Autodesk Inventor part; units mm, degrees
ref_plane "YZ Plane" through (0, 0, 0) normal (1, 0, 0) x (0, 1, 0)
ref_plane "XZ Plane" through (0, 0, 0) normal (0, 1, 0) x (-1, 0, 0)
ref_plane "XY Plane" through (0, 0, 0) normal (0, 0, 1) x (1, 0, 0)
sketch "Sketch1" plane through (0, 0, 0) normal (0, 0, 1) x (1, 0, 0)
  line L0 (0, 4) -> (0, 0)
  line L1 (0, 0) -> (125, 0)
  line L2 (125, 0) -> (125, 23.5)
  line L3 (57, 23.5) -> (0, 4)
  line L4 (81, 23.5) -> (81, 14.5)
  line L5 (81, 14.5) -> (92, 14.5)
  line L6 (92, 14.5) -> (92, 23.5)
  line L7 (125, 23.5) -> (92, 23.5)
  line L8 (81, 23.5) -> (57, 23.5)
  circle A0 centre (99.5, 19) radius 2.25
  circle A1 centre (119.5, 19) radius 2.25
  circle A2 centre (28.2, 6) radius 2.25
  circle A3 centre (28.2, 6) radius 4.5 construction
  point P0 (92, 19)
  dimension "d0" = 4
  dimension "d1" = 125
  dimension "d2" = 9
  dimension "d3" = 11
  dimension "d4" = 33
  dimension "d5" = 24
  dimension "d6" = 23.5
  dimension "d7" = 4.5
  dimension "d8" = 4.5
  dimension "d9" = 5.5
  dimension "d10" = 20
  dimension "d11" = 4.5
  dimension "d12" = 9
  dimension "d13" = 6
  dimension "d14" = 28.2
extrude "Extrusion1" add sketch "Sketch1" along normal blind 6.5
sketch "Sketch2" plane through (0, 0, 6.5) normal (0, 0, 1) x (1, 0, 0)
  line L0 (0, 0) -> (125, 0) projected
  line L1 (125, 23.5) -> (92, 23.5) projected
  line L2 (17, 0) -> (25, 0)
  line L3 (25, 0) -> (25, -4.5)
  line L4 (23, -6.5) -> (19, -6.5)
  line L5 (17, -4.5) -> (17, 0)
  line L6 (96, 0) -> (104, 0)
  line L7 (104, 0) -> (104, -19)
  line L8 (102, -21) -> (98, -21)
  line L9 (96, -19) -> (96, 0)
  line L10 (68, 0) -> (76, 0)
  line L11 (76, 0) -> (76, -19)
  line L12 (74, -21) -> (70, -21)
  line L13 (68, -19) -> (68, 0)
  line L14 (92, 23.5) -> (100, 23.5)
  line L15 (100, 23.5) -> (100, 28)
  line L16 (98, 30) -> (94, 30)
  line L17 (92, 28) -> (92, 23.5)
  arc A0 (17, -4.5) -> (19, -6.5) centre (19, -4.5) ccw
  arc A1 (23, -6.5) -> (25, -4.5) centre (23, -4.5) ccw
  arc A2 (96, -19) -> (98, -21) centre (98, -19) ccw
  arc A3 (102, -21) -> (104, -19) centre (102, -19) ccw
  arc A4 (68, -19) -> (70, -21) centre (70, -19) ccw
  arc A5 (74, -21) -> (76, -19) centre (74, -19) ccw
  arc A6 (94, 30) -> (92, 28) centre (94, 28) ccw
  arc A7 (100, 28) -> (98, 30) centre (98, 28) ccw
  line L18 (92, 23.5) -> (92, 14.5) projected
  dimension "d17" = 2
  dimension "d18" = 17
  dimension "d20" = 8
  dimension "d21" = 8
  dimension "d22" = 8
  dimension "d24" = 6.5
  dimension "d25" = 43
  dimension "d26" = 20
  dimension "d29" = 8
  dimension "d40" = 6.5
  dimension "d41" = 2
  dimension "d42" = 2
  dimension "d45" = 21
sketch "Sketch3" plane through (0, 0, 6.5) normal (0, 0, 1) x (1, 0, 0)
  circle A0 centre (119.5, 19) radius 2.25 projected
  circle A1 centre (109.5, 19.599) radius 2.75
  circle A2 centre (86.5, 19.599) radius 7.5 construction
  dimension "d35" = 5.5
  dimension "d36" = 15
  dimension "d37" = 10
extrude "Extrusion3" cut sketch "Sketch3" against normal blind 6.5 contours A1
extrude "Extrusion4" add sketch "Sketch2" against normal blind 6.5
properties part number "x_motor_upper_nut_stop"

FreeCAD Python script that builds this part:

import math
import FreeCAD as App
import Part
import Sketcher
from FreeCAD import Vector

doc = App.newDocument("Part")
body = doc.addObject("PartDesign::Body", "Body")

sketch1 = body.newObject("Sketcher::SketchObject", "Sketch")
sketch1.AttachmentSupport = (doc.getObject("XY_Plane"), [""])
sketch1.MapMode = "FlatFace"
sketch1.addGeometry(Part.LineSegment(Vector(57, 23.5, 0), Vector(0, 4, 0)), False)
sketch1.addGeometry(Part.LineSegment(Vector(0, 4, 0), Vector(0, 0, 0)), False)
sketch1.addGeometry(Part.LineSegment(Vector(0, 0, 0), Vector(125, 0, 0)), False)
sketch1.addGeometry(Part.LineSegment(Vector(125, 0, 0), Vector(125, 23.5, 0)), False)
sketch1.addGeometry(Part.LineSegment(Vector(125, 23.5, 0), Vector(92, 23.5, 0)), False)
sketch1.addGeometry(Part.LineSegment(Vector(92, 23.5, 0), Vector(92, 14.5, 0)), False)
sketch1.addGeometry(Part.LineSegment(Vector(92, 14.5, 0), Vector(81, 14.5, 0)), False)
sketch1.addGeometry(Part.LineSegment(Vector(81, 14.5, 0), Vector(81, 23.5, 0)), False)
sketch1.addGeometry(Part.LineSegment(Vector(81, 23.5, 0), Vector(57, 23.5, 0)), False)
sketch1.addGeometry(Part.Circle(Vector(28.2, 6, 0), Vector(0, 0, 1), 2.25), False)
sketch1.addGeometry(Part.Circle(Vector(99.5, 19, 0), Vector(0, 0, 1), 2.25), False)
sketch1.addGeometry(Part.Circle(Vector(119.5, 19, 0), Vector(0, 0, 1), 2.25), False)
sketch1.addConstraint(Sketcher.Constraint("Coincident", 0, 2, 1, 1))
sketch1.addConstraint(Sketcher.Constraint("Coincident", 1, 2, 2, 1))
sketch1.addConstraint(Sketcher.Constraint("Coincident", 2, 2, 3, 1))
sketch1.addConstraint(Sketcher.Constraint("Coincident", 3, 2, 4, 1))
sketch1.addConstraint(Sketcher.Constraint("Coincident", 4, 2, 5, 1))
sketch1.addConstraint(Sketcher.Constraint("Coincident", 5, 2, 6, 1))
sketch1.addConstraint(Sketcher.Constraint("Coincident", 6, 2, 7, 1))
sketch1.addConstraint(Sketcher.Constraint("Coincident", 7, 2, 8, 1))
sketch1.addConstraint(Sketcher.Constraint("Coincident", 8, 2, 0, 1))
sketch1.addConstraint(Sketcher.Constraint("Vertical", 1))
sketch1.addConstraint(Sketcher.Constraint("Horizontal", 2))
sketch1.addConstraint(Sketcher.Constraint("Vertical", 3))
sketch1.addConstraint(Sketcher.Constraint("Horizontal", 4))
sketch1.addConstraint(Sketcher.Constraint("Vertical", 5))
sketch1.addConstraint(Sketcher.Constraint("Horizontal", 6))
sketch1.addConstraint(Sketcher.Constraint("Vertical", 7))
sketch1.addConstraint(Sketcher.Constraint("Horizontal", 8))
sketch1.addConstraint(Sketcher.Constraint("Coincident", 1, 2, -1, 1))
sketch1.addConstraint(Sketcher.Constraint("Equal", 9, 10))
sketch1.addConstraint(Sketcher.Constraint("Equal", 10, 11))
sketch1.addConstraint(Sketcher.Constraint("Horizontal", 10, 3, 11, 3))
sketch1.addConstraint(Sketcher.Constraint("Horizontal", 4, 2, 7, 2))
sketch1.addConstraint(Sketcher.Constraint("Diameter", 9, 4.5))
sketch1.addConstraint(Sketcher.Constraint("DistanceX", 2, 1, 2, 2, 125.0))
sketch1.addConstraint(Sketcher.Constraint("DistanceX", 4, 2, 4, 1, 33.0))
sketch1.addConstraint(Sketcher.Constraint("DistanceX", 6, 2, 6, 1, 11.0))
sketch1.addConstraint(Sketcher.Constraint("DistanceX", 8, 2, 8, 1, 24.0))
sketch1.addConstraint(Sketcher.Constraint("DistanceY", 1, 2, 1, 1, 4.0))
sketch1.addConstraint(Sketcher.Constraint("DistanceY", 5, 2, 5, 1, 9.0))
sketch1.addConstraint(Sketcher.Constraint("DistanceY", 3, 1, 3, 2, 23.5))
sketch1.addConstraint(Sketcher.Constraint("DistanceY", -1, 1, 9, 3, 6.0))
sketch1.addConstraint(Sketcher.Constraint("DistanceX", 10, 3, 11, 3, 20.0))
sketch1.addConstraint(Sketcher.Constraint("DistanceX", -1, 1, 9, 3, 28.2))
sketch1.addConstraint(Sketcher.Constraint("DistanceX", 11, 3, 2, 2, 5.5))
sketch1.addConstraint(Sketcher.Constraint("DistanceY", 11, 3, 3, 2, 4.5))
pad1 = body.newObject("PartDesign::Pad", "Pad")
pad1.Profile = sketch1
pad1.Length = 6.5

sketch2 = body.newObject("Sketcher::SketchObject", "Sketch001")
sketch2.AttachmentSupport = (doc.getObject("XY_Plane"), [""])
sketch2.MapMode = "FlatFace"
sketch2.AttachmentOffset = App.Placement(Vector(0, 0, 6.5), App.Rotation())
sketch2.addGeometry(Part.Circle(Vector(109.5, 19.599, 0), Vector(0, 0, 1), 2.75), False)
sketch2.addConstraint(Sketcher.Constraint("Diameter", 0, 5.5))
sketch2.addConstraint(Sketcher.Constraint("DistanceX", -1, 1, 0, 3, 109.5))
sketch2.addConstraint(Sketcher.Constraint("DistanceY", -1, 1, 0, 3, 19.599))
pocket1 = body.newObject("PartDesign::Pocket", "Pocket")
pocket1.Profile = sketch2
pocket1.Length = 6.5

sketch3 = body.newObject("Sketcher::SketchObject", "Sketch002")
sketch3.AttachmentSupport = (doc.getObject("XY_Plane"), [""])
sketch3.MapMode = "FlatFace"
sketch3.AttachmentOffset = App.Placement(Vector(0, 0, 6.5), App.Rotation())
sketch3.addGeometry(Part.LineSegment(Vector(104, 0, 0), Vector(96, 0, 0)), False)
sketch3.addGeometry(Part.LineSegment(Vector(96, 0, 0), Vector(96, -19, 0)), False)
sketch3.addGeometry(Part.ArcOfCircle(Part.Circle(Vector(98, -19, 0), Vector(0, 0, 1), 2), math.radians(180), math.radians(270)), False)
sketch3.addGeometry(Part.LineSegment(Vector(98, -21, 0), Vector(102, -21, 0)), False)
sketch3.addGeometry(Part.ArcOfCircle(Part.Circle(Vector(102, -19, 0), Vector(0, 0, 1), 2), math.radians(-90), math.radians(0)), False)
sketch3.addGeometry(Part.LineSegment(Vector(104, -19, 0), Vector(104, 0, 0)), False)
sketch3.addGeometry(Part.LineSegment(Vector(76, 0, 0), Vector(68, 0, 0)), False)
sketch3.addGeometry(Part.LineSegment(Vector(68, 0, 0), Vector(68, -19, 0)), False)
sketch3.addGeometry(Part.ArcOfCircle(Part.Circle(Vector(70, -19, 0), Vector(0, 0, 1), 2), math.radians(180), math.radians(270)), False)
sketch3.addGeometry(Part.LineSegment(Vector(70, -21, 0), Vector(74, -21, 0)), False)
sketch3.addGeometry(Part.ArcOfCircle(Part.Circle(Vector(74, -19, 0), Vector(0, 0, 1), 2), math.radians(-90), math.radians(0)), False)
sketch3.addGeometry(Part.LineSegment(Vector(76, -19, 0), Vector(76, 0, 0)), False)
sketch3.addGeometry(Part.LineSegment(Vector(25, 0, 0), Vector(17, 0, 0)), False)
sketch3.addGeometry(Part.LineSegment(Vector(17, 0, 0), Vector(17, -4.5, 0)), False)
sketch3.addGeometry(Part.ArcOfCircle(Part.Circle(Vector(19, -4.5, 0), Vector(0, 0, 1), 2), math.radians(180), math.radians(270)), False)
sketch3.addGeometry(Part.LineSegment(Vector(19, -6.5, 0), Vector(23, -6.5, 0)), False)
sketch3.addGeometry(Part.ArcOfCircle(Part.Circle(Vector(23, -4.5, 0), Vector(0, 0, 1), 2), math.radians(-90), math.radians(0)), False)
sketch3.addGeometry(Part.LineSegment(Vector(25, -4.5, 0), Vector(25, 0, 0)), False)
sketch3.addGeometry(Part.LineSegment(Vector(92, 23.5, 0), Vector(100, 23.5, 0)), False)
sketch3.addGeometry(Part.LineSegment(Vector(100, 23.5, 0), Vector(100, 28, 0)), False)
sketch3.addGeometry(Part.ArcOfCircle(Part.Circle(Vector(98, 28, 0), Vector(0, 0, 1), 2), math.radians(0), math.radians(90)), False)
sketch3.addGeometry(Part.LineSegment(Vector(98, 30, 0), Vector(94, 30, 0)), False)
sketch3.addGeometry(Part.ArcOfCircle(Part.Circle(Vector(94, 28, 0), Vector(0, 0, 1), 2), math.radians(90), math.radians(180)), False)
sketch3.addGeometry(Part.LineSegment(Vector(92, 28, 0), Vector(92, 23.5, 0)), False)
sketch3.addConstraint(Sketcher.Constraint("Coincident", 0, 2, 1, 1))
sketch3.addConstraint(Sketcher.Constraint("Tangent", 1, 2, 2, 1))
sketch3.addConstraint(Sketcher.Constraint("Tangent", 2, 2, 3, 1))
sketch3.addConstraint(Sketcher.Constraint("Tangent", 3, 2, 4, 1))
sketch3.addConstraint(Sketcher.Constraint("Tangent", 4, 2, 5, 1))
sketch3.addConstraint(Sketcher.Constraint("Coincident", 5, 2, 0, 1))
sketch3.addConstraint(Sketcher.Constraint("Coincident", 6, 2, 7, 1))
sketch3.addConstraint(Sketcher.Constraint("Tangent", 7, 2, 8, 1))
sketch3.addConstraint(Sketcher.Constraint("Tangent", 8, 2, 9, 1))
sketch3.addConstraint(Sketcher.Constraint("Tangent", 9, 2, 10, 1))
sketch3.addConstraint(Sketcher.Constraint("Tangent", 10, 2, 11, 1))
sketch3.addConstraint(Sketcher.Constraint("Coincident", 11, 2, 6, 1))
sketch3.addConstraint(Sketcher.Constraint("Coincident", 12, 2, 13, 1))
sketch3.addConstraint(Sketcher.Constraint("Tangent", 13, 2, 14, 1))
sketch3.addConstraint(Sketcher.Constraint("Tangent", 14, 2, 15, 1))
sketch3.addConstraint(Sketcher.Constraint("Tangent", 15, 2, 16, 1))
sketch3.addConstraint(Sketcher.Constraint("Tangent", 16, 2, 17, 1))
sketch3.addConstraint(Sketcher.Constraint("Coincident", 17, 2, 12, 1))
sketch3.addConstraint(Sketcher.Constraint("Coincident", 18, 2, 19, 1))
sketch3.addConstraint(Sketcher.Constraint("Tangent", 19, 2, 20, 1))
sketch3.addConstraint(Sketcher.Constraint("Tangent", 20, 2, 21, 1))
sketch3.addConstraint(Sketcher.Constraint("Tangent", 21, 2, 22, 1))
sketch3.addConstraint(Sketcher.Constraint("Tangent", 22, 2, 23, 1))
sketch3.addConstraint(Sketcher.Constraint("Coincident", 23, 2, 18, 1))
sketch3.addConstraint(Sketcher.Constraint("Horizontal", 0))
sketch3.addConstraint(Sketcher.Constraint("Vertical", 1))
sketch3.addConstraint(Sketcher.Constraint("Horizontal", 3))
sketch3.addConstraint(Sketcher.Constraint("Vertical", 5))
sketch3.addConstraint(Sketcher.Constraint("Horizontal", 6))
sketch3.addConstraint(Sketcher.Constraint("Vertical", 7))
sketch3.addConstraint(Sketcher.Constraint("Horizontal", 9))
sketch3.addConstraint(Sketcher.Constraint("Vertical", 11))
sketch3.addConstraint(Sketcher.Constraint("Horizontal", 12))
sketch3.addConstraint(Sketcher.Constraint("Vertical", 13))
sketch3.addConstraint(Sketcher.Constraint("Horizontal", 15))
sketch3.addConstraint(Sketcher.Constraint("Vertical", 17))
sketch3.addConstraint(Sketcher.Constraint("Horizontal", 18))
sketch3.addConstraint(Sketcher.Constraint("Vertical", 19))
sketch3.addConstraint(Sketcher.Constraint("Horizontal", 21))
sketch3.addConstraint(Sketcher.Constraint("Vertical", 23))
sketch3.addConstraint(Sketcher.Constraint("Equal", 2, 4))
sketch3.addConstraint(Sketcher.Constraint("Equal", 4, 8))
sketch3.addConstraint(Sketcher.Constraint("Equal", 8, 10))
sketch3.addConstraint(Sketcher.Constraint("Equal", 10, 14))
sketch3.addConstraint(Sketcher.Constraint("Equal", 14, 16))
sketch3.addConstraint(Sketcher.Constraint("Equal", 16, 20))
sketch3.addConstraint(Sketcher.Constraint("Equal", 20, 22))
sketch3.addConstraint(Sketcher.Constraint("PointOnObject", 0, 2, -1))
sketch3.addConstraint(Sketcher.Constraint("PointOnObject", 6, 2, -1))
sketch3.addConstraint(Sketcher.Constraint("PointOnObject", 12, 2, -1))
sketch3.addConstraint(Sketcher.Constraint("Horizontal", 4, 3, 8, 3))
sketch3.addConstraint(Sketcher.Constraint("Vertical", 2, 3, 20, 3))
sketch3.addConstraint(Sketcher.Constraint("Equal", 0, 6))
sketch3.addConstraint(Sketcher.Constraint("Equal", 6, 12))
sketch3.addConstraint(Sketcher.Constraint("Equal", 12, 18))
sketch3.addConstraint(Sketcher.Constraint("Equal", 17, 19))
sketch3.addConstraint(Sketcher.Constraint("Radius", 2, 2.0))
sketch3.addConstraint(Sketcher.Constraint("DistanceX", 0, 2, 0, 1, 8.0))
sketch3.addConstraint(Sketcher.Constraint("DistanceY", 2, 2, -1, 1, 21.0))
sketch3.addConstraint(Sketcher.Constraint("DistanceX", -1, 1, 12, 2, 17.0))
sketch3.addConstraint(Sketcher.Constraint("DistanceX", 10, 3, 22, 3, 20.0))
sketch3.addConstraint(Sketcher.Constraint("DistanceY", 14, 2, -1, 1, 6.5))
sketch3.addConstraint(Sketcher.Constraint("DistanceX", -1, 1, 2, 3, 98.0))
sketch3.addConstraint(Sketcher.Constraint("DistanceY", -1, 1, 20, 3, 28.0))
pad2 = body.newObject("PartDesign::Pad", "Pad001")
pad2.Profile = sketch3
pad2.Length = 6.5
pad2.Reversed = True

doc.recompute()
